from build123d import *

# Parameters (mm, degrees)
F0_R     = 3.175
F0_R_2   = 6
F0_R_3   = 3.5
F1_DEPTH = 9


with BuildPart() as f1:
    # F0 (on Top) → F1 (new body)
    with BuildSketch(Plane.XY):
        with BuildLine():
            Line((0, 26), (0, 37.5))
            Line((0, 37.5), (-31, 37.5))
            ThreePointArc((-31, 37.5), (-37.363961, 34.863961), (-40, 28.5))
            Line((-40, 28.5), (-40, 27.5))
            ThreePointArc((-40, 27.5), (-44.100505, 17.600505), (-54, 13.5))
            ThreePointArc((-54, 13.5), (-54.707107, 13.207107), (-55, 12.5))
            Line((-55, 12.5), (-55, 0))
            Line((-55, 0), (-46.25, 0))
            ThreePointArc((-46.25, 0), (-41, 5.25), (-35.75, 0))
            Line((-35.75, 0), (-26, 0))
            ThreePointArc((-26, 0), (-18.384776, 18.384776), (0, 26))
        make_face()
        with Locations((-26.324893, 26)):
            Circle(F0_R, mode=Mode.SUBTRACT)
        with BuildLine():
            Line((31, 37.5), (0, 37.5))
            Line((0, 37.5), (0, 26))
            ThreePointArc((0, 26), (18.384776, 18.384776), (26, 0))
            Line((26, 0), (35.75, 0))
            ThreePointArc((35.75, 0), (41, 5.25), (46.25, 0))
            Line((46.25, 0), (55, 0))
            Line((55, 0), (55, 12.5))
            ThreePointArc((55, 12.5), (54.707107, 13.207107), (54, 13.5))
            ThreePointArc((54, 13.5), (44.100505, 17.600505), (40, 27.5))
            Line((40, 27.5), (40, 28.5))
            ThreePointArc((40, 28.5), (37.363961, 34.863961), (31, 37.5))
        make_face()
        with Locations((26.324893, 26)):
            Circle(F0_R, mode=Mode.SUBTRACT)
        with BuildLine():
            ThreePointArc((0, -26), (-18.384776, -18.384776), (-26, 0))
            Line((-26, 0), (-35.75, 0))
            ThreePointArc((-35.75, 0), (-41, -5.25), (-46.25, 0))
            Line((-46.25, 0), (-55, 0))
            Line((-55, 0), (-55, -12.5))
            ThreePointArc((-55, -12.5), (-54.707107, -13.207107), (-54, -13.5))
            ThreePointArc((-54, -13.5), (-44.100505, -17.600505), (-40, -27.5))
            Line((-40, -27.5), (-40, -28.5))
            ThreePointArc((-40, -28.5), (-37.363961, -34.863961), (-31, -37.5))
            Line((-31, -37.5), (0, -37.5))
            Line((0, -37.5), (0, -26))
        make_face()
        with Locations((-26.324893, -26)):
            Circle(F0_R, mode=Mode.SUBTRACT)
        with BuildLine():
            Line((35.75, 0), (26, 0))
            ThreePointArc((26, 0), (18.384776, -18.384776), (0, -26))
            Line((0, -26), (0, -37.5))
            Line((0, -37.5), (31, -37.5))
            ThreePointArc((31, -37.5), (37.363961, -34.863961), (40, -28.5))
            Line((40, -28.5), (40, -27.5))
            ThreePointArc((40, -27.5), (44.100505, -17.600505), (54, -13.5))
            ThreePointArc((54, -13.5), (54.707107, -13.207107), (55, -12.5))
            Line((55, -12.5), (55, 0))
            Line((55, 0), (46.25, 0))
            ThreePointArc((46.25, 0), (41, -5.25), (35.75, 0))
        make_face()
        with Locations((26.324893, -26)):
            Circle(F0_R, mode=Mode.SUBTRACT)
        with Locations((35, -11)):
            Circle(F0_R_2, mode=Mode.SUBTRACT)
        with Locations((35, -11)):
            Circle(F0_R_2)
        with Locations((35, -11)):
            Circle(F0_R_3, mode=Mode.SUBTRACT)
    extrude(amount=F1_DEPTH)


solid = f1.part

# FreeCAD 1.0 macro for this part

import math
import FreeCAD as App
import Part
import Sketcher
from FreeCAD import Vector

doc = App.newDocument("Part")
body = doc.addObject("PartDesign::Body", "Body")

# Sketch on XY plane
sketch1 = body.newObject("Sketcher::SketchObject", "Sketch")
sketch1.AttachmentSupport = (doc.getObject("XY_Plane"), [""])
sketch1.MapMode = "FlatFace"
sketch1.addGeometry([
    Part.LineSegment(Vector(-31, -37.5, 0), Vector(31, -37.5, 0)),  # 0
    Part.ArcOfCircle(Part.Circle(Vector(31, -28.5, 0), Vector(0, 0, 1), 9), math.radians(-90), math.radians(0)),  # 1
    Part.LineSegment(Vector(40, -28.5, 0), Vector(40, -27.5, 0)),  # 2
    Part.ArcOfCircle(Part.Circle(Vector(54, -27.5, 0), Vector(0, 0, 1), 14), math.radians(90), math.radians(180)),  # 3
    Part.ArcOfCircle(Part.Circle(Vector(54, -12.5, 0), Vector(0, 0, 1), 1), math.radians(-90), math.radians(0)),  # 4
    Part.LineSegment(Vector(55, -12.5, 0), Vector(55, 12.5, 0)),  # 5
    Part.ArcOfCircle(Part.Circle(Vector(54, 12.5, 0), Vector(0, 0, 1), 1), math.radians(0), math.radians(90)),  # 6
    Part.ArcOfCircle(Part.Circle(Vector(54, 27.5, 0), Vector(0, 0, 1), 14), math.radians(180), math.radians(270)),  # 7
    Part.LineSegment(Vector(40, 27.5, 0), Vector(40, 28.5, 0)),  # 8
    Part.ArcOfCircle(Part.Circle(Vector(31, 28.5, 0), Vector(0, 0, 1), 9), math.radians(0), math.radians(90)),  # 9
    Part.LineSegment(Vector(31, 37.5, 0), Vector(-31, 37.5, 0)),  # 10
    Part.ArcOfCircle(Part.Circle(Vector(-31, 28.5, 0), Vector(0, 0, 1), 9), math.radians(90), math.radians(180)),  # 11
    Part.LineSegment(Vector(-40, 28.5, 0), Vector(-40, 27.5, 0)),  # 12
    Part.ArcOfCircle(Part.Circle(Vector(-54, 27.5, 0), Vector(0, 0, 1), 14), math.radians(-90), math.radians(0)),  # 13
    Part.ArcOfCircle(Part.Circle(Vector(-54, 12.5, 0), Vector(0, 0, 1), 1), math.radians(90), math.radians(180)),  # 14
    Part.LineSegment(Vector(-55, 12.5, 0), Vector(-55, -12.5, 0)),  # 15
    Part.ArcOfCircle(Part.Circle(Vector(-54, -12.5, 0), Vector(0, 0, 1), 1), math.radians(180), math.radians(270)),  # 16
    Part.ArcOfCircle(Part.Circle(Vector(-54, -27.5, 0), Vector(0, 0, 1), 14), math.radians(0), math.radians(90)),  # 17
    Part.LineSegment(Vector(-40, -27.5, 0), Vector(-40, -28.5, 0)),  # 18
    Part.ArcOfCircle(Part.Circle(Vector(-31, -28.5, 0), Vector(0, 0, 1), 9), math.radians(-180), math.radians(-90)),  # 19
    Part.Circle(Vector(-26.3, -26, 0), Vector(0, 0, 1), 3.2),  # 20
    Part.Circle(Vector(-41, 0, 0), Vector(0, 0, 1), 5.2),  # 21
    Part.Circle(Vector(26.3, -26, 0), Vector(0, 0, 1), 3.2),  # 22
    Part.ArcOfCircle(Part.Circle(Vector(0, 0, 0), Vector(0, 0, 1), 26), math.radians(90), math.radians(180)),  # 23
    Part.ArcOfCircle(Part.Circle(Vector(0, 0, 0), Vector(0, 0, 1), 26), math.radians(0), math.radians(90)),  # 24
    Part.ArcOfCircle(Part.Circle(Vector(0, 0, 0), Vector(0, 0, 1), 26), math.radians(-90), math.radians(0)),  # 25
    Part.ArcOfCircle(Part.Circle(Vector(0, 0, 0), Vector(0, 0, 1), 26), math.radians(-180), math.radians(-90)),  # 26
    Part.Circle(Vector(35, -11, 0), Vector(0, 0, 1), 3.5),  # 27
    Part.Circle(Vector(41, 0, 0), Vector(0, 0, 1), 5.2),  # 28
    Part.Circle(Vector(-26.3, 26, 0), Vector(0, 0, 1), 3.2),  # 29
    Part.Circle(Vector(26.3, 26, 0), Vector(0, 0, 1), 3.2),  # 30
], False)
sketch1.addConstraint([
    Sketcher.Constraint("Tangent", 0, 2, 1, 1),
    Sketcher.Constraint("Tangent", 1, 2, 2, 1),
    Sketcher.Constraint("Tangent", 2, 2, 3, 2),
    Sketcher.Constraint("Tangent", 3, 1, 4, 1),
    Sketcher.Constraint("Tangent", 4, 2, 5, 1),
    Sketcher.Constraint("Tangent", 5, 2, 6, 1),
    Sketcher.Constraint("Tangent", 6, 2, 7, 2),
    Sketcher.Constraint("Tangent", 7, 1, 8, 1),
    Sketcher.Constraint("Tangent", 8, 2, 9, 1),
    Sketcher.Constraint("Tangent", 9, 2, 10, 1),
    Sketcher.Constraint("Tangent", 10, 2, 11, 1),
    Sketcher.Constraint("Tangent", 11, 2, 12, 1),
    Sketcher.Constraint("Tangent", 12, 2, 13, 2),
    Sketcher.Constraint("Tangent", 13, 1, 14, 1),
    Sketcher.Constraint("Tangent", 14, 2, 15, 1),
    Sketcher.Constraint("Tangent", 15, 2, 16, 1),
    Sketcher.Constraint("Tangent", 16, 2, 17, 2),
    Sketcher.Constraint("Tangent", 17, 1, 18, 1),
    Sketcher.Constraint("Tangent", 18, 2, 19, 1),
    Sketcher.Constraint("Tangent", 19, 2, 0, 1),
    Sketcher.Constraint("Tangent", 23, 1, 24, 2),
    Sketcher.Constraint("Tangent", 24, 1, 25, 2),
    Sketcher.Constraint("Tangent", 25, 1, 26, 2),
    Sketcher.Constraint("Tangent", 26, 1, 23, 2),
    Sketcher.Constraint("Horizontal", 0),
    Sketcher.Constraint("Vertical", 2),
    Sketcher.Constraint("Vertical", 5),
    Sketcher.Constraint("Vertical", 8),
    Sketcher.Constraint("Horizontal", 10),
    Sketcher.Constraint("Vertical", 12),
    Sketcher.Constraint("Vertical", 15),
    Sketcher.Constraint("Vertical", 18),
    Sketcher.Constraint("Coincident", 23, 3, -1, 1),
    Sketcher.Constraint("Equal", 4, 6),
    Sketcher.Constraint("Equal", 3, 7),
    Sketcher.Constraint("Equal", 1, 9),
    Sketcher.Constraint("Equal", 9, 11),
    Sketcher.Constraint("Equal", 7, 13),
    Sketcher.Constraint("Equal", 6, 14),
    Sketcher.Constraint("Equal", 14, 16),
    Sketcher.Constraint("Equal", 13, 17),
    Sketcher.Constraint("Equal", 11, 19),
    Sketcher.Constraint("Equal", 20, 22),
    Sketcher.Constraint("Equal", 23, 24),
    Sketcher.Constraint("Equal", 21, 28),
    Sketcher.Constraint("Equal", 22, 29),
    Sketcher.Constraint("Equal", 29, 30),
    Sketcher.Constraint("Symmetric", 1, 3, 11, 3, -1, 1),
    Sketcher.Constraint("Symmetric", 4, 3, 14, 3, -1, 1),
    Sketcher.Constraint("Symmetric", 7, 3, 17, 3, -1, 1),
    Sketcher.Constraint("Symmetric", 21, 3, 28, 3, -1, 1),
    Sketcher.Constraint("Symmetric", 22, 3, 29, 3, -1, 1),
    Sketcher.Constraint("Symmetric", 20, 3, 30, 3, -1, 1),
    Sketcher.Constraint("Symmetric", 7, 3, 13, 3, -2),
    Sketcher.Constraint("Symmetric", 20, 3, 22, 3, -2),
    Sketcher.Constraint("PointOnObject", 21, 3, -1),
    Sketcher.Constraint("PointOnObject", 23, 1, -2),
    Sketcher.Constraint("PointOnObject", 24, 1, -1),
    Sketcher.Constraint("PointOnObject", 25, 1, -2),
    Sketcher.Constraint("PointOnObject", 26, 1, -1),
    Sketcher.Constraint("Horizontal", 30, 3, 23, 1),
    Sketcher.Constraint("Vertical", 3, 3, 4, 3),
    Sketcher.Constraint("Diameter", 27, 7.0),
    Sketcher.Constraint("Radius", 1, 9.0),
    Sketcher.Constraint("Radius", 3, 14.0),
    Sketcher.Constraint("Radius", 4, 0.999999),
    Sketcher.Constraint("Radius", 23, 26.000001),
    Sketcher.Constraint("Diameter", 21, 10.5),
    Sketcher.Constraint("Diameter", 20, 6.35),
    Sketcher.Constraint("DistanceX", 0, 1, 0, 2, 62.0),
    Sketcher.Constraint("DistanceY", 2, 1, 2, 2, 1.0),
    Sketcher.Constraint("DistanceY", 5, 1, 5, 2, 25.0),
    Sketcher.Constraint("DistanceX", 21, 3, -1, 1, 41.0),
    Sketcher.Constraint("DistanceX", -1, 1, 27, 3, 35.0),
    Sketcher.Constraint("DistanceY", 27, 3, -1, 1, 11.0),
    Sketcher.Constraint("DistanceX", 23, 3, 22, 3, 26.324892),
])
pad1 = body.newObject("PartDesign::Pad", "Pad")
pad1.Profile = sketch1
pad1.Length = 9

doc.recompute()
